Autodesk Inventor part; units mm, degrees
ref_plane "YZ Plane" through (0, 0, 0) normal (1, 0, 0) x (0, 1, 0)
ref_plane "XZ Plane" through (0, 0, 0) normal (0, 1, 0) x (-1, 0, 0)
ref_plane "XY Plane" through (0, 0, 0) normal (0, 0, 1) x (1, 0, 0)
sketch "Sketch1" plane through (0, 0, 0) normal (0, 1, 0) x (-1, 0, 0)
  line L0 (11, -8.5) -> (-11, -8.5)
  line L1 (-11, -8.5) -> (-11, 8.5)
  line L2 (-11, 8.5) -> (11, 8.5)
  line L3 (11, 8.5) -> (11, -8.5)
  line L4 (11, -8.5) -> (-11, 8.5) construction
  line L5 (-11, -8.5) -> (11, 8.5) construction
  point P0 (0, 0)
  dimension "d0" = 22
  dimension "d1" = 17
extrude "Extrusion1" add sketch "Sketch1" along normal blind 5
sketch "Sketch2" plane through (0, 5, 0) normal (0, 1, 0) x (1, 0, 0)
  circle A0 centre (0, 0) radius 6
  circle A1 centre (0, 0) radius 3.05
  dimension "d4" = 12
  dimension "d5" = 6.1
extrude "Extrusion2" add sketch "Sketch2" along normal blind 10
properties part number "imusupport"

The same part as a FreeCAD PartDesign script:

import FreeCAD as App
import Part
import Sketcher

doc = App.newDocument("Part")
body = doc.addObject("PartDesign::Body", "Body")

# Sketch on XZ plane
sketch1 = doc.addObject("Sketcher::SketchObject", "Sketch")
body.addObject(sketch1)
sketch1.AttachmentSupport = (doc.XZ_Plane, [""])
sketch1.MapMode = "FlatFace"
sketch1.addGeometry([
    Part.LineSegment(App.Vector(11, -8, 0), App.Vector(-11, -8, 0)),
    Part.LineSegment(App.Vector(-11, -8, 0), App.Vector(-11, 8, 0)),
    Part.LineSegment(App.Vector(-11, 8, 0), App.Vector(11, 8, 0)),
    Part.LineSegment(App.Vector(11, 8, 0), App.Vector(11, -8, 0)),
], False)
sketch1.addConstraint([
    Sketcher.Constraint("Coincident", 0, 2, 1, 1),
    Sketcher.Constraint("Coincident", 1, 2, 2, 1),
    Sketcher.Constraint("Coincident", 2, 2, 3, 1),
    Sketcher.Constraint("Coincident", 3, 2, 0, 1),
    Sketcher.Constraint("Horizontal", 0),
    Sketcher.Constraint("Vertical", 1),
    Sketcher.Constraint("Horizontal", 2),
    Sketcher.Constraint("Vertical", 3),
    Sketcher.Constraint("Symmetric", 0, 2, 2, 2, -1, 1),
    Sketcher.Constraint("DistanceX", 0, 2, 0, 1, 22.0),
    Sketcher.Constraint("DistanceY", 1, 1, 1, 2, 17.0),
])
pad1 = doc.addObject("PartDesign::Pad", "Pad")
body.addObject(pad1)
pad1.Profile = sketch1
pad1.Length = 5
pad1.Reversed = True

# Sketch on XZ plane
sketch2 = doc.addObject("Sketcher::SketchObject", "Sketch001")
body.addObject(sketch2)
sketch2.AttachmentSupport = (doc.XZ_Plane, [""])
sketch2.MapMode = "FlatFace"
sketch2.AttachmentOffset = App.Placement(App.Vector(0, 0, -5), App.Rotation())
sketch2.addGeometry([
    Part.Circle(App.Vector(0, 0, 0), App.Vector(0, 0, 1), 6),
    Part.Circle(App.Vector(0, 0, 0), App.Vector(0, 0, 1), 3),
], False)
sketch2.addConstraint([
    Sketcher.Constraint("Coincident", 0, 3, -1, 1),
    Sketcher.Constraint("Coincident", 1, 3, -1, 1),
    Sketcher.Constraint("Diameter", 0, 12.0),
    Sketcher.Constraint("Diameter", 1, 6.1),
])
pad2 = doc.addObject("PartDesign::Pad", "Pad001")
body.addObject(pad2)
pad2.Profile = sketch2
pad2.Length = 10
pad2.Reversed = True

doc.recompute()
